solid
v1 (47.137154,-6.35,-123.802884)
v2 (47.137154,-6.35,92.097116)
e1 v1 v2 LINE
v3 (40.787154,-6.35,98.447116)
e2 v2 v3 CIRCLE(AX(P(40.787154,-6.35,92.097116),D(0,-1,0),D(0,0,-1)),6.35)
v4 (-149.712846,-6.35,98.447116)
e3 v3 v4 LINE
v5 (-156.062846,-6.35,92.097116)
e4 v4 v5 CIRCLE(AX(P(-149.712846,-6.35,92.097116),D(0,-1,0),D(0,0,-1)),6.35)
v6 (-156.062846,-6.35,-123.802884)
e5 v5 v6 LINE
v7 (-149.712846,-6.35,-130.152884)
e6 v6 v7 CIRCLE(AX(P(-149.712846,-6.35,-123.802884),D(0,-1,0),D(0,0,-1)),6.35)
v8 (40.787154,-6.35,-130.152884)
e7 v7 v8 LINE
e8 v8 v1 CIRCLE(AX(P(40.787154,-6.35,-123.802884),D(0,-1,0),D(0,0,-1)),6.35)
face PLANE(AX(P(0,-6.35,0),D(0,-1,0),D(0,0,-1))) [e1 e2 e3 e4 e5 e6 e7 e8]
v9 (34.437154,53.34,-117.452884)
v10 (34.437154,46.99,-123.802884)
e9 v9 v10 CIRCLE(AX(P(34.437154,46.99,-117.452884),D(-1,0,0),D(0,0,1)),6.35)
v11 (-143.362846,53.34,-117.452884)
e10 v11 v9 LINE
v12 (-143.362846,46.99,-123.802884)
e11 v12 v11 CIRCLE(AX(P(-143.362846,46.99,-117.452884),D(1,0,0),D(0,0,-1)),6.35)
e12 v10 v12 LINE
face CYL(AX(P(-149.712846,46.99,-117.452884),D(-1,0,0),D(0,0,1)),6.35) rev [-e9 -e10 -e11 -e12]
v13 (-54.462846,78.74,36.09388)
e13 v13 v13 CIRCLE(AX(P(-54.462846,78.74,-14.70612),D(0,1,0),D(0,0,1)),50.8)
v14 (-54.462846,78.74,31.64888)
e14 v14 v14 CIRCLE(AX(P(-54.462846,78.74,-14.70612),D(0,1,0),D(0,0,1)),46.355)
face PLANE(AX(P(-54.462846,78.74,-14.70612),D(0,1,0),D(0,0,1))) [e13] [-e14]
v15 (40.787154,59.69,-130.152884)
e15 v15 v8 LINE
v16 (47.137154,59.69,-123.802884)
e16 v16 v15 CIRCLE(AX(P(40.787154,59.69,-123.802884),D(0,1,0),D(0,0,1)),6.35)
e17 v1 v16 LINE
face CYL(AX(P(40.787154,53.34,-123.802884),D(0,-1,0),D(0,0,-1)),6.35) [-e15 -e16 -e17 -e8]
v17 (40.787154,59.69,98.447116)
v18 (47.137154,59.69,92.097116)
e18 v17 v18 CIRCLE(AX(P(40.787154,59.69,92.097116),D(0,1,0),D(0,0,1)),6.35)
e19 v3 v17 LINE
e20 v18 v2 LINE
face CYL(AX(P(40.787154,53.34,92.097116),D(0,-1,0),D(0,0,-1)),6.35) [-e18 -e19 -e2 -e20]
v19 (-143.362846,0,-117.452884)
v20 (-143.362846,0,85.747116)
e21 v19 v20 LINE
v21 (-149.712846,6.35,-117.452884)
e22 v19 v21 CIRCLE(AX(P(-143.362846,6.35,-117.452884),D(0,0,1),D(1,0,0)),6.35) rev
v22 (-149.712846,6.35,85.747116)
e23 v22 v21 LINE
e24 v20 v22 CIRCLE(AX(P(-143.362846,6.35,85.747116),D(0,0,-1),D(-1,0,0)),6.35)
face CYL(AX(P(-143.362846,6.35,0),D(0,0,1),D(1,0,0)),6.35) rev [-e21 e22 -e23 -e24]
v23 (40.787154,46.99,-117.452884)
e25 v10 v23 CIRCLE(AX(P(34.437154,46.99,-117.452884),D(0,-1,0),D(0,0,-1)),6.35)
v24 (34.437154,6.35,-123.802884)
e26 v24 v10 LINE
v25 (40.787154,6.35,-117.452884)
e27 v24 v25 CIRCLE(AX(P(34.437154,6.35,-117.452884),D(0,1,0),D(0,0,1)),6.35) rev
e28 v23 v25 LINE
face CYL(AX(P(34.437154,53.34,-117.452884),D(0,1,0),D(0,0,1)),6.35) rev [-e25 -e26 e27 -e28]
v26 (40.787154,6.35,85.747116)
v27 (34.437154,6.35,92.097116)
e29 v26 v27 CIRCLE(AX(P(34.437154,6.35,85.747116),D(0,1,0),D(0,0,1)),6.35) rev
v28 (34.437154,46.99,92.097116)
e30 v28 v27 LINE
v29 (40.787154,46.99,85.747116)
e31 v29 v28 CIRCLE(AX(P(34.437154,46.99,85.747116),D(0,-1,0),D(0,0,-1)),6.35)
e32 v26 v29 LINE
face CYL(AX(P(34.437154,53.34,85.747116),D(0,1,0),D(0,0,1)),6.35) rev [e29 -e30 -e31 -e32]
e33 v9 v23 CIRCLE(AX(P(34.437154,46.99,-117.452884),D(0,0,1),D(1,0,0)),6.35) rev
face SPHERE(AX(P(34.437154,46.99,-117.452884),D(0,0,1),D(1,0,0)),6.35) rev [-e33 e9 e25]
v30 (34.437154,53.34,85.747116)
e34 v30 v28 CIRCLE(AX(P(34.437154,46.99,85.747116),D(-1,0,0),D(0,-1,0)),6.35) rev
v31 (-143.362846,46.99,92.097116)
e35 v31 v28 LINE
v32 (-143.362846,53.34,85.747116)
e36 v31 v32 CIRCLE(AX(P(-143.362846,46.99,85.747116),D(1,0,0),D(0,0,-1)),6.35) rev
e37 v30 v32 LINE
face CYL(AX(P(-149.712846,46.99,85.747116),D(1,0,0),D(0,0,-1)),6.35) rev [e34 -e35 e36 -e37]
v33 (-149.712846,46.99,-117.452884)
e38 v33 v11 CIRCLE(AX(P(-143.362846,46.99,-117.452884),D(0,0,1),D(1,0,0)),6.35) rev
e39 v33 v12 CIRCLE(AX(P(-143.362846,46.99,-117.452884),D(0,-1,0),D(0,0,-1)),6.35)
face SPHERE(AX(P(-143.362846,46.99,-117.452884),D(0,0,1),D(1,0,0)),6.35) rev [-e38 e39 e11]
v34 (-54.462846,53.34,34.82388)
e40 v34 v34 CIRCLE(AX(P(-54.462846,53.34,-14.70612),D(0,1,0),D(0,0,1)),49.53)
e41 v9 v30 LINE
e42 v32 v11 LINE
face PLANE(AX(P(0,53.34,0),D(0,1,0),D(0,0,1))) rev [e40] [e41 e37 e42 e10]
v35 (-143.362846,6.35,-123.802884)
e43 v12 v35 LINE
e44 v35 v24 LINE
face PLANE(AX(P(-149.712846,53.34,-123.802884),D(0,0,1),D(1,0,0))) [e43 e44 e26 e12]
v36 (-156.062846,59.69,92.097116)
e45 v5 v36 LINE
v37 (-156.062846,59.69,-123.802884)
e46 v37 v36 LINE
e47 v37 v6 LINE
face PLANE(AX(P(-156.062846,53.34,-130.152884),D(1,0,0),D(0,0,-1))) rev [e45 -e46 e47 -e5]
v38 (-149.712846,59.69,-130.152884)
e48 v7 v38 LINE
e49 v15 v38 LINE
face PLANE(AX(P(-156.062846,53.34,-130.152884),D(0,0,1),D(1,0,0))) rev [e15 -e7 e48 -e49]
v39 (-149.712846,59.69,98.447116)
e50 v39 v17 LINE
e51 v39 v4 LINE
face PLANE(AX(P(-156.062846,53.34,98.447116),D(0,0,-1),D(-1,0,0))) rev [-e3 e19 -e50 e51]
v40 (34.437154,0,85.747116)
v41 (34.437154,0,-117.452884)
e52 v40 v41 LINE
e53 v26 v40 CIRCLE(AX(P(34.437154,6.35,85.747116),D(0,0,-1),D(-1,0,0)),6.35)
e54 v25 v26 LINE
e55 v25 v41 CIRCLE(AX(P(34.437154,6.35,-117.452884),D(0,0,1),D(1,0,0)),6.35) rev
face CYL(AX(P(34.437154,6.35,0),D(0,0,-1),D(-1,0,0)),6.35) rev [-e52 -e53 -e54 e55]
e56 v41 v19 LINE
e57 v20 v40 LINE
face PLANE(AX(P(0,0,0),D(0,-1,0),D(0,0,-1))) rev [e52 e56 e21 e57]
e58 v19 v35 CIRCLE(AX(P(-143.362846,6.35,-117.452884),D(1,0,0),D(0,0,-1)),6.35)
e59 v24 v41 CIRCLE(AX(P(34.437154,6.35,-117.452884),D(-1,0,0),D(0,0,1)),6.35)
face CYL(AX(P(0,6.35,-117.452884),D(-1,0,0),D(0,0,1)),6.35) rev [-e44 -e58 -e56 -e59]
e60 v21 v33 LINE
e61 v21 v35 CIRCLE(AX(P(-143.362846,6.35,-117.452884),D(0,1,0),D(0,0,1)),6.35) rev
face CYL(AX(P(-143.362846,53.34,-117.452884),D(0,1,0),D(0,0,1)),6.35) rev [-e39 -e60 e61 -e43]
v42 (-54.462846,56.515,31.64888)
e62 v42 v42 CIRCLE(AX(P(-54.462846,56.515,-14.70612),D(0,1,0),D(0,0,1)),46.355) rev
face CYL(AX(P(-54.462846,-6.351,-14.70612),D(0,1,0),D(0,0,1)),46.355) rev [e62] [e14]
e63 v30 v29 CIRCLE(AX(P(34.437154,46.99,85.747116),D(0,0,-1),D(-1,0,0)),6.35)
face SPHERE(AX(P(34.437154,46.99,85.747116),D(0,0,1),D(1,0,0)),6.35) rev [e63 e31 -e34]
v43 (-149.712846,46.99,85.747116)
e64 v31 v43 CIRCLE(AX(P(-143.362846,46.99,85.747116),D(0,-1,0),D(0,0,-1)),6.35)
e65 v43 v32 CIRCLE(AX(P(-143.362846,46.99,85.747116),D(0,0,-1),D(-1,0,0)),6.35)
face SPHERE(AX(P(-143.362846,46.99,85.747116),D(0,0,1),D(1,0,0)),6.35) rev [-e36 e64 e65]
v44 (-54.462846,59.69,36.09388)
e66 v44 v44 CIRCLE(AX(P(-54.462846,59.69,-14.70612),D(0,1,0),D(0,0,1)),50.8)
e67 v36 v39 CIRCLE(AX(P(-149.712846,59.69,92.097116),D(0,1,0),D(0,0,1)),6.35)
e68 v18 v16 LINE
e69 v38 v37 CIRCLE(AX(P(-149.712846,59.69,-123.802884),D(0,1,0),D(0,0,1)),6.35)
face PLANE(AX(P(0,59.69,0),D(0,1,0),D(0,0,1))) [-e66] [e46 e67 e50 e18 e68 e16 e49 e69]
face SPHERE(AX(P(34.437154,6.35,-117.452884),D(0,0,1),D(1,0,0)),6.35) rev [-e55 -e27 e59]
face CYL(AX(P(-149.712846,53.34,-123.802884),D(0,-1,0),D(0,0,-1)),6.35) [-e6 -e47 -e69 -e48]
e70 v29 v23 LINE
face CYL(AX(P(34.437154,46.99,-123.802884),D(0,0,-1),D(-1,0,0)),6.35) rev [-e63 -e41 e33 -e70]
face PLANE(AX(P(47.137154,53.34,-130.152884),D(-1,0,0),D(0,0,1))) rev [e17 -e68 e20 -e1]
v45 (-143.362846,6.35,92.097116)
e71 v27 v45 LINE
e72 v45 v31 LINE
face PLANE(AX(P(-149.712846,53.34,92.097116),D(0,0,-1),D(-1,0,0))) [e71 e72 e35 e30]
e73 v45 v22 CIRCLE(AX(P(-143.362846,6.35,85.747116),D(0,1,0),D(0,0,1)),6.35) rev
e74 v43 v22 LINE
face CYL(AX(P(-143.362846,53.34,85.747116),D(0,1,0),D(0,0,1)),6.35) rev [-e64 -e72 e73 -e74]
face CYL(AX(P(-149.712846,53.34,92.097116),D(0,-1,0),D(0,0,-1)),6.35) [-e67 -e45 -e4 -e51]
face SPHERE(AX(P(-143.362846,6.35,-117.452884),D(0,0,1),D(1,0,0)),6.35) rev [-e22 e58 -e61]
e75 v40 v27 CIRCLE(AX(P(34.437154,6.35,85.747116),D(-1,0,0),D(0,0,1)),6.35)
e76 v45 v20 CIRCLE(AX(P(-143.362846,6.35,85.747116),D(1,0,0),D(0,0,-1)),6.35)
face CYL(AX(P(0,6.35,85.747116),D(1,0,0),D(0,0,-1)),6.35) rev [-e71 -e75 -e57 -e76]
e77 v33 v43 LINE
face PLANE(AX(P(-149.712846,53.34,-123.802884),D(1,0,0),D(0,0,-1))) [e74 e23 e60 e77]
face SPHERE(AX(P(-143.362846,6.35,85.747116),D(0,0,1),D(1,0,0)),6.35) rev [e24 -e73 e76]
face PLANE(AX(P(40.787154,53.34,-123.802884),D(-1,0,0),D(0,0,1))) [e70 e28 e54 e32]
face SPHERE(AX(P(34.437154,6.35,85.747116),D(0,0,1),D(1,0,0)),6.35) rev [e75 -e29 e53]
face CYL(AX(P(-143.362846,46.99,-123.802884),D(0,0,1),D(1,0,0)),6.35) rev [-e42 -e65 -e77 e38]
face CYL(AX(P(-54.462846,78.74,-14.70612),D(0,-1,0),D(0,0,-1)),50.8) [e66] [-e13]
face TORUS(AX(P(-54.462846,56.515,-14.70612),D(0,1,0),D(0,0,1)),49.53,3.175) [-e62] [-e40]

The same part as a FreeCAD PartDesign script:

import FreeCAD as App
import Part
import Sketcher

V = App.Vector
Q = App.Units.Quantity


def edges_at(feature, points):
    """Names of the edges that pass closest to the given points."""
    edges = feature.Shape.Edges
    near = lambda p: min(range(len(edges)), key=lambda i: edges[i].distToShape(Part.Vertex(*p))[0])
    return sorted({f"Edge{near(p) + 1}" for p in points})


def add_polygon(sketch, points):
    """Adds a closed chain of lines whose ends are joined by coincident constraints."""
    first, n = sketch.GeometryCount, len(points)
    for a, b in zip(points, points[1:] + points[:1]):
        sketch.addGeometry(Part.LineSegment(App.Vector(*a, 0), App.Vector(*b, 0)), False)
    for i in range(n):
        sketch.addConstraint(Sketcher.Constraint("Coincident", first + i, 2, first + (i + 1) % n, 1))

doc = App.newDocument("Part")
body = doc.addObject("PartDesign::Body", "Body")

# Sketch on XZ plane
sketch1 = doc.addObject("Sketcher::SketchObject", "Sketch")
body.addObject(sketch1)
sketch1.AttachmentSupport = (doc.XZ_Plane, [""])
sketch1.MapMode = "FlatFace"
add_polygon(sketch1, [(-156, -130), (-156, 98), (47, 98), (47, -130)])  # lines 0-3
add_polygon(sketch1, [(41, 92), (-150, 92), (-150, -124), (41, -124)])  # lines 4-7
sketch1.addConstraint(Sketcher.Constraint("Vertical", 0))
sketch1.addConstraint(Sketcher.Constraint("Horizontal", 1))
sketch1.addConstraint(Sketcher.Constraint("Vertical", 2))
sketch1.addConstraint(Sketcher.Constraint("Horizontal", 3))
sketch1.addConstraint(Sketcher.Constraint("Horizontal", 4))
sketch1.addConstraint(Sketcher.Constraint("Vertical", 5))
sketch1.addConstraint(Sketcher.Constraint("Horizontal", 6))
sketch1.addConstraint(Sketcher.Constraint("Vertical", 7))
sketch1.addConstraint(Sketcher.Constraint("DistanceX", 1, 1, 1, 2, Q("8 in")))
sketch1.addConstraint(Sketcher.Constraint("DistanceY", 0, 1, 0, 2, Q("9 in")))
sketch1.addConstraint(Sketcher.Constraint("DistanceX", 4, 2, 4, 1, Q("7.5 in")))
sketch1.addConstraint(Sketcher.Constraint("DistanceY", 5, 2, 5, 1, Q("8.5 in")))
sketch1.addConstraint(Sketcher.Constraint("DistanceX", 0, 2, 4, 2, Q("0.25 in")))
sketch1.addConstraint(Sketcher.Constraint("DistanceY", 4, 2, 0, 2, Q("0.25 in")))
sketch1.addConstraint(Sketcher.Constraint("DistanceX", 0, 2, -1, 1, 156.062846))
sketch1.addConstraint(Sketcher.Constraint("DistanceY", -1, 1, 0, 2, 98.447116))
pad1 = doc.addObject("PartDesign::Pad", "Pad")
body.addObject(pad1)
pad1.Profile = sketch1
pad1.Length = Q("2.1 in")
pad1.Reversed = True

# Sketch on XZ plane
sketch2 = doc.addObject("Sketcher::SketchObject", "Sketch001")
body.addObject(sketch2)
sketch2.AttachmentSupport = (doc.XZ_Plane, [""])
sketch2.MapMode = "FlatFace"
add_polygon(sketch2, [(47, -130), (47, 98), (-156, 98), (-156, -130)])  # lines 0-3
sketch2.addConstraint(Sketcher.Constraint("Vertical", 0))
sketch2.addConstraint(Sketcher.Constraint("Horizontal", 1))
sketch2.addConstraint(Sketcher.Constraint("Vertical", 2))
sketch2.addConstraint(Sketcher.Constraint("Horizontal", 3))
sketch2.addConstraint(Sketcher.Constraint("DistanceX", 1, 2, 1, 1, Q("8 in")))
sketch2.addConstraint(Sketcher.Constraint("DistanceY", 0, 1, 0, 2, Q("9 in")))
sketch2.addConstraint(Sketcher.Constraint("DistanceX", -1, 1, 0, 2, 47.137154))
sketch2.addConstraint(Sketcher.Constraint("DistanceY", -1, 1, 0, 2, 98.447116))
pad2 = doc.addObject("PartDesign::Pad", "Pad001")
body.addObject(pad2)
pad2.Profile = sketch2
pad2.Length = Q("0.25 in")

# Sketch on XZ plane
sketch3 = doc.addObject("Sketcher::SketchObject", "Sketch002")
body.addObject(sketch3)
sketch3.AttachmentSupport = (doc.XZ_Plane, [""])
sketch3.MapMode = "FlatFace"
sketch3.AttachmentOffset = App.Placement(V(0, 0, -2.1 * 25.4), App.Rotation())
add_polygon(sketch3, [(-156, -130), (-156, 98), (47, 98), (47, -130)])  # lines 0-3
sketch3.addConstraint(Sketcher.Constraint("Vertical", 0))
sketch3.addConstraint(Sketcher.Constraint("Horizontal", 1))
sketch3.addConstraint(Sketcher.Constraint("Vertical", 2))
sketch3.addConstraint(Sketcher.Constraint("Horizontal", 3))
sketch3.addConstraint(Sketcher.Constraint("DistanceX", 1, 1, 1, 2, Q("8 in")))
sketch3.addConstraint(Sketcher.Constraint("DistanceY", 0, 1, 0, 2, Q("9 in")))
sketch3.addConstraint(Sketcher.Constraint("DistanceX", 0, 2, -1, 1, 156.062846))
sketch3.addConstraint(Sketcher.Constraint("DistanceY", -1, 1, 0, 2, 98.447116))
pad3 = doc.addObject("PartDesign::Pad", "Pad002")
body.addObject(pad3)
pad3.Profile = sketch3
pad3.Length = Q("0.25 in")
pad3.Reversed = True

# Sketch on XZ plane
sketch4 = doc.addObject("Sketcher::SketchObject", "Sketch003")
body.addObject(sketch4)
sketch4.AttachmentSupport = (doc.XZ_Plane, [""])
sketch4.MapMode = "FlatFace"
sketch4.AttachmentOffset = App.Placement(V(0, 0, -2.35 * 25.4), App.Rotation())
sketch4.addGeometry(Part.Circle(V(-54, -15, 0), V(0, 0, 1), 46), False)
sketch4.addConstraint(Sketcher.Constraint("Diameter", 0, Q("3.65 in")))
sketch4.addConstraint(Sketcher.Constraint("DistanceY", 0, 3, -1, 1, 14.70612))
sketch4.addConstraint(Sketcher.Constraint("DistanceX", 0, 3, -1, 1, 54.462846))
pocket1 = doc.addObject("PartDesign::Pocket", "Pocket")
body.addObject(pocket1)
pocket1.Profile = sketch4
pocket1.Type = "UpToFirst"
pocket1.Reversed = True
doc.recompute()

fillet = doc.addObject("PartDesign::Fillet", "Fillet")
body.addObject(fillet)
fillet.Base = (pocket1, edges_at(pocket1, [
    (-149.713, 0, -15.853),
    (-149.713, 26.67, -123.803),
    (-54.463, 0, 92.097),
    (-149.713, 26.67, 92.097),
    (40.787, 0, -15.853),
    (40.787, 26.67, 92.097),
    (-54.463, 0, -123.803),
    (40.787, 26.67, -123.803),
    (-149.713, 53.34, -15.853),
    (-54.463, 53.34, 92.097),
    (40.787, 53.34, -15.853),
    (-54.463, 53.34, -123.803),
    (-156.063, 26.67, -130.153),
    (47.137, 26.67, -130.153),
    (47.137, 26.67, 98.447),
    (-156.063, 26.67, 98.447),
]))
fillet.Radius = Q("0.25 in")

# Sketch on XZ plane
sketch5 = doc.addObject("Sketcher::SketchObject", "Sketch004")
body.addObject(sketch5)
sketch5.AttachmentSupport = (doc.XZ_Plane, [""])
sketch5.MapMode = "FlatFace"
sketch5.AttachmentOffset = App.Placement(V(0, 0, -2.35 * 25.4), App.Rotation())
sketch5.addGeometry(Part.Circle(V(-54, -15, 0), V(0, 0, 1), 51), False)
sketch5.addGeometry(Part.Circle(V(-54, -15, 0), V(0, 0, 1), 46), False)
sketch5.addConstraint(Sketcher.Constraint("Coincident", 1, 3, 0, 3))
sketch5.addConstraint(Sketcher.Constraint("Diameter", 0, Q("4 in")))
sketch5.addConstraint(Sketcher.Constraint("Diameter", 1, Q("3.65 in")))
sketch5.addConstraint(Sketcher.Constraint("DistanceY", 0, 3, -1, 1, 14.70612))
sketch5.addConstraint(Sketcher.Constraint("DistanceX", 0, 3, -1, 1, 54.462846))
pad4 = doc.addObject("PartDesign::Pad", "Pad003")
body.addObject(pad4)
pad4.Profile = sketch5
pad4.Length = Q("0.75 in")
pad4.Reversed = True
doc.recompute()

fillet2 = doc.addObject("PartDesign::Fillet", "Fillet001")
body.addObject(fillet2)
fillet2.Base = (pad4, edges_at(pad4, [(-100.818, 53.34, -14.706)]))
fillet2.Radius = Q("0.125 in")

doc.recompute()
